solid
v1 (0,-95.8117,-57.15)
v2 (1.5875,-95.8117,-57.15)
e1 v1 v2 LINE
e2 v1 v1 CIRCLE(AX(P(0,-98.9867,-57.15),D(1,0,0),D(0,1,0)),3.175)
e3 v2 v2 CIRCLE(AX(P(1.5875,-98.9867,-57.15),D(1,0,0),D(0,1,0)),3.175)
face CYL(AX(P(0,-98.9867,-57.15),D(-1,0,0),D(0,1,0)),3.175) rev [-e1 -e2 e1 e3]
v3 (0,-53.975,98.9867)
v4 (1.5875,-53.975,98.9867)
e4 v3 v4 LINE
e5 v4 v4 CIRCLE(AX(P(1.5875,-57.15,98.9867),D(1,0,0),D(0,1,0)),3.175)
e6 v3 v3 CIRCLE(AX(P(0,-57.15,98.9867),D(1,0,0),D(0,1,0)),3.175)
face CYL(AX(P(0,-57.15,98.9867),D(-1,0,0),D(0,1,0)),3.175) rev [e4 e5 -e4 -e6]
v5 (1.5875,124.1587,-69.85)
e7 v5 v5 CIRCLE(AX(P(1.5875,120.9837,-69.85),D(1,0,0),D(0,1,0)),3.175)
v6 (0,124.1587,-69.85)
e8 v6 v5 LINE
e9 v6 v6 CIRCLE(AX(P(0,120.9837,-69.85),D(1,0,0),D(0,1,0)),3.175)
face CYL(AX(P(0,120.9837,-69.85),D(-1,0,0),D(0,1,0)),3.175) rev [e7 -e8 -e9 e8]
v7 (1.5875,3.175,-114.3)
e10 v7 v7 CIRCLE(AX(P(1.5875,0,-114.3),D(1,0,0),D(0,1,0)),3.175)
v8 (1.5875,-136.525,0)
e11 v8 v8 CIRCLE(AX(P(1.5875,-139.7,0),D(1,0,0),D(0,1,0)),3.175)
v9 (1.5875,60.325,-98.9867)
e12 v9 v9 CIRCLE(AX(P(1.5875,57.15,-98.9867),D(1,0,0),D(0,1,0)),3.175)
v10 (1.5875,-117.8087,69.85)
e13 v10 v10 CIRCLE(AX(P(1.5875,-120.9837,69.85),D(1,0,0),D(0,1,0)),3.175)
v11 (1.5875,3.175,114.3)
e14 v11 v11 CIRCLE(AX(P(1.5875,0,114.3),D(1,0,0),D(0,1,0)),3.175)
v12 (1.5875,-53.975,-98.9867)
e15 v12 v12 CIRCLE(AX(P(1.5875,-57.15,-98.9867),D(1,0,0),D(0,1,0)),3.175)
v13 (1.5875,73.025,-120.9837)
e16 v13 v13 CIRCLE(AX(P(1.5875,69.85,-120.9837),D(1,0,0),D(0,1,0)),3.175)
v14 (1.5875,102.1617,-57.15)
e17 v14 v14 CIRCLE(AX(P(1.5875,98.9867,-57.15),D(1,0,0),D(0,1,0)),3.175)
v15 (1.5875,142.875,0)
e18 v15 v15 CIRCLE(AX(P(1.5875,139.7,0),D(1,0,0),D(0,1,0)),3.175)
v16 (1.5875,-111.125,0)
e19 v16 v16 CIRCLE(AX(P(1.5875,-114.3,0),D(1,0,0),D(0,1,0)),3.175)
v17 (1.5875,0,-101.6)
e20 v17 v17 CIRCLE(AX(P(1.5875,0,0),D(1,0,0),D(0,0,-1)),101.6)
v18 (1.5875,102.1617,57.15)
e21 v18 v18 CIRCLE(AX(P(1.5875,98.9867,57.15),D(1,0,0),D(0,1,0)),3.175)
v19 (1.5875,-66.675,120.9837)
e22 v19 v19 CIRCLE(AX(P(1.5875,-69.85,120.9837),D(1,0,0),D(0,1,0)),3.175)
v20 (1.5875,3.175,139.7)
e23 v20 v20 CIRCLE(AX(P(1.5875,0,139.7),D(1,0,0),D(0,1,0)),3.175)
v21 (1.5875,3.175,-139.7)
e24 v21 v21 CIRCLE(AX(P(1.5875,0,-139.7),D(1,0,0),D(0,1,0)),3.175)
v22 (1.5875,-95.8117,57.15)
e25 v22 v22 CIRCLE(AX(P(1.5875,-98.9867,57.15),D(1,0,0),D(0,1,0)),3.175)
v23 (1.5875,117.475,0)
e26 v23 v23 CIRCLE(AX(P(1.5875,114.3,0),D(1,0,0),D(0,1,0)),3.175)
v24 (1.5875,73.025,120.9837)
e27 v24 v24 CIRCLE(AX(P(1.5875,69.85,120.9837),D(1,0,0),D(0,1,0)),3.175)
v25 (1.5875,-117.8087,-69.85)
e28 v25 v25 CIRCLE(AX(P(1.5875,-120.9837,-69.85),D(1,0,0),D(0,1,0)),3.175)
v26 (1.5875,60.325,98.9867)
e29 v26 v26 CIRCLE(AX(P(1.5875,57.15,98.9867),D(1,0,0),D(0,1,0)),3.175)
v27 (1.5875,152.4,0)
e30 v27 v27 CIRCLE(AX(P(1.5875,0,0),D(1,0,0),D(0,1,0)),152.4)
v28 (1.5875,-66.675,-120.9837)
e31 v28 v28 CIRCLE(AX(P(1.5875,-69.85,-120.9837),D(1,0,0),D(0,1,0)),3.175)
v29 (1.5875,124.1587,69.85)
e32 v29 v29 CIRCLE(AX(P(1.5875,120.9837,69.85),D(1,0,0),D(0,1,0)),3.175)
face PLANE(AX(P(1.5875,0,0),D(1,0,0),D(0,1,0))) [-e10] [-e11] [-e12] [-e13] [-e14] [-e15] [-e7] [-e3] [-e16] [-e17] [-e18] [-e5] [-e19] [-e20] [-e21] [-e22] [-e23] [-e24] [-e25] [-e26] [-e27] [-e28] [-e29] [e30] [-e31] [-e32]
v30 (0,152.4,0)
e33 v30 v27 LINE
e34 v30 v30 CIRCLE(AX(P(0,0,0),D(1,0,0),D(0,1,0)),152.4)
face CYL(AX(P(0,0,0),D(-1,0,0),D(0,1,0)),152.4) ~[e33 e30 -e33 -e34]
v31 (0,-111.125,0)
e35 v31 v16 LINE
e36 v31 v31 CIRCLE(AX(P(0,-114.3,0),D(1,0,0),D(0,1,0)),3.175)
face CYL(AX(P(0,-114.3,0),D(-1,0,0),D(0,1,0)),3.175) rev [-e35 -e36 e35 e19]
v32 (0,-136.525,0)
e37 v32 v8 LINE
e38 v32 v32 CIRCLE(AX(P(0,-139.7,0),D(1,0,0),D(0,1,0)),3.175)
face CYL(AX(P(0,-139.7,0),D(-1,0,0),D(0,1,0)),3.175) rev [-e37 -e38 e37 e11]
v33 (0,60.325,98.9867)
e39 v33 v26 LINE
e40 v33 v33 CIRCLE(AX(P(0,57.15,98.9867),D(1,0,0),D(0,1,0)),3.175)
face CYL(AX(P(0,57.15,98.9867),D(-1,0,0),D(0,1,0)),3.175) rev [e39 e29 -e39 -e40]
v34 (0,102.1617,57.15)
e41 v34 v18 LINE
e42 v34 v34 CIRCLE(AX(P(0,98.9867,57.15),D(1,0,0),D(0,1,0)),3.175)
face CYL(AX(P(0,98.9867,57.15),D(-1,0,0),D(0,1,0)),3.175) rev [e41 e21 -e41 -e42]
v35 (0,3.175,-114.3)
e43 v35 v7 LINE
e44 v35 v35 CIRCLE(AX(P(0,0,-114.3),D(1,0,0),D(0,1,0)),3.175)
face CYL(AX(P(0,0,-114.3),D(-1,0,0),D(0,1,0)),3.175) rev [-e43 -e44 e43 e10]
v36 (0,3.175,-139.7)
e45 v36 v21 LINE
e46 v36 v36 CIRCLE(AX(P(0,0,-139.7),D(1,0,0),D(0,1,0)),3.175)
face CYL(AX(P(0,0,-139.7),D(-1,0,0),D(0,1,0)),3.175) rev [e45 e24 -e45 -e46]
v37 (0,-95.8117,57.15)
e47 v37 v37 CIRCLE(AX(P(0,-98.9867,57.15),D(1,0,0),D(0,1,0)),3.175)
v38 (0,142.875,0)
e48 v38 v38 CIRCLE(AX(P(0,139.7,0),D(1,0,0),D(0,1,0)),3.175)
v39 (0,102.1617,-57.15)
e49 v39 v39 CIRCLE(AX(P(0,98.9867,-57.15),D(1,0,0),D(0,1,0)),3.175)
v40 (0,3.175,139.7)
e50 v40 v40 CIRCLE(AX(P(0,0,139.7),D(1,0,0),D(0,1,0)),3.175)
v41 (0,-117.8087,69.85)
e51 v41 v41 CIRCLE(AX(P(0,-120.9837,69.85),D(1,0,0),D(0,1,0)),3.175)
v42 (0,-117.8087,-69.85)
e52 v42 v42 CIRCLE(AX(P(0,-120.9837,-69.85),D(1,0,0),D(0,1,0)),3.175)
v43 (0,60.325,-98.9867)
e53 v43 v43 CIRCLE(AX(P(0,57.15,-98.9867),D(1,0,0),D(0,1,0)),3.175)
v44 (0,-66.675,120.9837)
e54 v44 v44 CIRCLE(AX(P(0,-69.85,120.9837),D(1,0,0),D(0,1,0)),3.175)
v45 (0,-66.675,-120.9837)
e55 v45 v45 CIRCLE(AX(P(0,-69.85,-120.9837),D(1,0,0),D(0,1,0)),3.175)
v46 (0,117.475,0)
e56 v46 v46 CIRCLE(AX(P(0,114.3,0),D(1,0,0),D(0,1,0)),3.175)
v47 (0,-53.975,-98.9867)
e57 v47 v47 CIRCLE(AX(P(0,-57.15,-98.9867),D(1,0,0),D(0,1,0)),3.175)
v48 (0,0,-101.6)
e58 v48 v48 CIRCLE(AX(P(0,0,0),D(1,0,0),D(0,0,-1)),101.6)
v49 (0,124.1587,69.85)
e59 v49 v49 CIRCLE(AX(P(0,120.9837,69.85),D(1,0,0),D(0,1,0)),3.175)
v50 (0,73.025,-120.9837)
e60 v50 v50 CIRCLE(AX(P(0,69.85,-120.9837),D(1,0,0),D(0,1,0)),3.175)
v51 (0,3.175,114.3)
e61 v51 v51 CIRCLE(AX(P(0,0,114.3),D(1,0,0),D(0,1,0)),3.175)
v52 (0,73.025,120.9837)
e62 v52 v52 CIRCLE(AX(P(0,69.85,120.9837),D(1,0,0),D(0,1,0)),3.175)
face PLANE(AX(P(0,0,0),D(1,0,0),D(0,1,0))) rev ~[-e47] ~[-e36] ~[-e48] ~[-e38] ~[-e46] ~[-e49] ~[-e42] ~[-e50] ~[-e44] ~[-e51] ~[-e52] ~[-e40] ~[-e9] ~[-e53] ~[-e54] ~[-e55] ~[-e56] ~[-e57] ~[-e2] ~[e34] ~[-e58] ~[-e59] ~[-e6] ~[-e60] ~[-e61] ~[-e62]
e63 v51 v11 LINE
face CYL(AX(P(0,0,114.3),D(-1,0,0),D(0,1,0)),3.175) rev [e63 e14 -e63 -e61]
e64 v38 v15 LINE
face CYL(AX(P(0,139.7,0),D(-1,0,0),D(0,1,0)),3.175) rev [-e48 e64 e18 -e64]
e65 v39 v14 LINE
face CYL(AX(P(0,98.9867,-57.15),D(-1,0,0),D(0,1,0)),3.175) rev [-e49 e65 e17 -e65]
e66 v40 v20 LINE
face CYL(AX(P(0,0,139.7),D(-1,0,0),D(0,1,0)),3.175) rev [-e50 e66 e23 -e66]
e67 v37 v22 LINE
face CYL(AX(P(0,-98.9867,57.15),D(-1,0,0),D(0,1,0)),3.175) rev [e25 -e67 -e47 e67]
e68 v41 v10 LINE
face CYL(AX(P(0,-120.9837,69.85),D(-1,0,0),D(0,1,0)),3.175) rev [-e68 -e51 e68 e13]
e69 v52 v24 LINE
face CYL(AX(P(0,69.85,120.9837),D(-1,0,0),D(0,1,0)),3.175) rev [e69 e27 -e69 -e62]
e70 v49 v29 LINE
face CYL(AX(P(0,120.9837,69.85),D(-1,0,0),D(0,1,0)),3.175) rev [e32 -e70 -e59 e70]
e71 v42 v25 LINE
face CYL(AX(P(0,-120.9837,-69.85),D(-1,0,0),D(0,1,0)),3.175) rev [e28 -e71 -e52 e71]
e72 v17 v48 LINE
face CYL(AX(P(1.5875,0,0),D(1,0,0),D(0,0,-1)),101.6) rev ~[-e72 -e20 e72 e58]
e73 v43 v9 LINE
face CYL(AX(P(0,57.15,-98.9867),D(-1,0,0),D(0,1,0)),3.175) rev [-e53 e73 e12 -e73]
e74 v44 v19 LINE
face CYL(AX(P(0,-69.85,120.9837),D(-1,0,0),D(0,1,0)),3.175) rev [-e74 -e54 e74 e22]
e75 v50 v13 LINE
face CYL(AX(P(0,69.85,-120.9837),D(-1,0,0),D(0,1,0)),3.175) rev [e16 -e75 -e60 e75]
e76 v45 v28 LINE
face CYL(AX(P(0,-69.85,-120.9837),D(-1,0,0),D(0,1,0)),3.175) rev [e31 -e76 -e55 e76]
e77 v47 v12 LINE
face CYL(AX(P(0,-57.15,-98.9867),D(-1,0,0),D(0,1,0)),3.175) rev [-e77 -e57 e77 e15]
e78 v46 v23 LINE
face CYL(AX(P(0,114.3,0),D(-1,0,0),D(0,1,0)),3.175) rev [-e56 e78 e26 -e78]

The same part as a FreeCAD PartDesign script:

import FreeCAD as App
import Part
import Sketcher

V = App.Vector
Q = App.Units.Quantity

doc = App.newDocument("Part")
body = doc.addObject("PartDesign::Body", "Body")

# Sketch on YZ plane
sketch1 = body.newObject("Sketcher::SketchObject", "Sketch")
sketch1.AttachmentSupport = (doc.getObject("YZ_Plane"), [""])
sketch1.MapMode = "FlatFace"
sketch1.addGeometry(Part.Circle(V(0, 0, 0), V(0, 0, 1), 152.4), False)
sketch1.addGeometry(Part.Circle(V(-69.85, -120.9837, 0), V(0, 0, 1), 3.175), False)
sketch1.addGeometry(Part.Circle(V(-57.15, -98.9867, 0), V(0, 0, 1), 3.175), False)
sketch1.addGeometry(Part.Circle(V(-120.9837, -69.85, 0), V(0, 0, 1), 3.175), False)
sketch1.addGeometry(Part.Circle(V(-98.9867, -57.15, 0), V(0, 0, 1), 3.175), False)
sketch1.addGeometry(Part.Circle(V(0, -139.7, 0), V(0, 0, 1), 3.175), False)
sketch1.addGeometry(Part.Circle(V(69.85, -120.9837, 0), V(0, 0, 1), 3.175), False)
sketch1.addGeometry(Part.Circle(V(0, -114.3, 0), V(0, 0, 1), 3.175), False)
sketch1.addGeometry(Part.Circle(V(57.15, -98.9867, 0), V(0, 0, 1), 3.175), False)
sketch1.addGeometry(Part.Circle(V(98.9867, -57.15, 0), V(0, 0, 1), 3.175), False)
sketch1.addGeometry(Part.Circle(V(120.9837, -69.85, 0), V(0, 0, 1), 3.175), False)
sketch1.addGeometry(Part.Circle(V(-139.7, 0, 0), V(0, 0, 1), 3.175), False)
sketch1.addGeometry(Part.Circle(V(-114.3, 0, 0), V(0, 0, 1), 3.175), False)
sketch1.addGeometry(Part.Circle(V(-120.9837, 69.85, 0), V(0, 0, 1), 3.175), False)
sketch1.addGeometry(Part.Circle(V(-98.9867, 57.15, 0), V(0, 0, 1), 3.175), False)
sketch1.addGeometry(Part.Circle(V(-57.15, 98.9867, 0), V(0, 0, 1), 3.175), False)
sketch1.addGeometry(Part.Circle(V(-69.85, 120.9837, 0), V(0, 0, 1), 3.175), False)
sketch1.addGeometry(Part.Circle(V(114.3, 0, 0), V(0, 0, 1), 3.175), False)
sketch1.addGeometry(Part.Circle(V(139.7, 0, 0), V(0, 0, 1), 3.175), False)
sketch1.addGeometry(Part.Circle(V(98.9867, 57.15, 0), V(0, 0, 1), 3.175), False)
sketch1.addGeometry(Part.Circle(V(120.9837, 69.85, 0), V(0, 0, 1), 3.175), False)
sketch1.addGeometry(Part.Circle(V(57.15, 98.9867, 0), V(0, 0, 1), 3.175), False)
sketch1.addGeometry(Part.Circle(V(0, 114.3, 0), V(0, 0, 1), 3.175), False)
sketch1.addGeometry(Part.Circle(V(0, 139.7, 0), V(0, 0, 1), 3.175), False)
sketch1.addGeometry(Part.Circle(V(69.85, 120.9837, 0), V(0, 0, 1), 3.175), False)
sketch1.addConstraint(Sketcher.Constraint("Coincident", 0, 3, -1, 1))
sketch1.addConstraint(Sketcher.Constraint("Equal", 1, 2))
sketch1.addConstraint(Sketcher.Constraint("Equal", 2, 3))
sketch1.addConstraint(Sketcher.Constraint("Equal", 3, 4))
sketch1.addConstraint(Sketcher.Constraint("Equal", 4, 5))
sketch1.addConstraint(Sketcher.Constraint("Equal", 5, 6))
sketch1.addConstraint(Sketcher.Constraint("Equal", 6, 7))
sketch1.addConstraint(Sketcher.Constraint("Equal", 7, 8))
sketch1.addConstraint(Sketcher.Constraint("Equal", 8, 9))
sketch1.addConstraint(Sketcher.Constraint("Equal", 9, 10))
sketch1.addConstraint(Sketcher.Constraint("Equal", 10, 11))
sketch1.addConstraint(Sketcher.Constraint("Equal", 11, 12))
sketch1.addConstraint(Sketcher.Constraint("Equal", 12, 13))
sketch1.addConstraint(Sketcher.Constraint("Equal", 13, 14))
sketch1.addConstraint(Sketcher.Constraint("Equal", 14, 15))
sketch1.addConstraint(Sketcher.Constraint("Equal", 15, 16))
sketch1.addConstraint(Sketcher.Constraint("Equal", 16, 17))
sketch1.addConstraint(Sketcher.Constraint("Equal", 17, 18))
sketch1.addConstraint(Sketcher.Constraint("Equal", 18, 19))
sketch1.addConstraint(Sketcher.Constraint("Equal", 19, 20))
sketch1.addConstraint(Sketcher.Constraint("Equal", 20, 21))
sketch1.addConstraint(Sketcher.Constraint("Equal", 21, 22))
sketch1.addConstraint(Sketcher.Constraint("Equal", 22, 23))
sketch1.addConstraint(Sketcher.Constraint("Equal", 23, 24))
sketch1.addConstraint(Sketcher.Constraint("Symmetric", 10, 3, 13, 3, -1, 1))
sketch1.addConstraint(Sketcher.Constraint("Symmetric", 9, 3, 14, 3, -1, 1))
sketch1.addConstraint(Sketcher.Constraint("Symmetric", 8, 3, 15, 3, -1, 1))
sketch1.addConstraint(Sketcher.Constraint("Symmetric", 6, 3, 16, 3, -1, 1))
sketch1.addConstraint(Sketcher.Constraint("Symmetric", 12, 3, 17, 3, -1, 1))
sketch1.addConstraint(Sketcher.Constraint("Symmetric", 11, 3, 18, 3, -1, 1))
sketch1.addConstraint(Sketcher.Constraint("Symmetric", 4, 3, 19, 3, -1, 1))
sketch1.addConstraint(Sketcher.Constraint("Symmetric", 3, 3, 20, 3, -1, 1))
sketch1.addConstraint(Sketcher.Constraint("Symmetric", 2, 3, 21, 3, -1, 1))
sketch1.addConstraint(Sketcher.Constraint("Symmetric", 7, 3, 22, 3, -1, 1))
sketch1.addConstraint(Sketcher.Constraint("Symmetric", 5, 3, 23, 3, -1, 1))
sketch1.addConstraint(Sketcher.Constraint("Symmetric", 1, 3, 24, 3, -1, 1))
sketch1.addConstraint(Sketcher.Constraint("Symmetric", 1, 3, 6, 3, -2))
sketch1.addConstraint(Sketcher.Constraint("Symmetric", 2, 3, 8, 3, -2))
sketch1.addConstraint(Sketcher.Constraint("Symmetric", 4, 3, 9, 3, -2))
sketch1.addConstraint(Sketcher.Constraint("Symmetric", 3, 3, 10, 3, -2))
sketch1.addConstraint(Sketcher.Constraint("PointOnObject", 5, 3, -2))
sketch1.addConstraint(Sketcher.Constraint("PointOnObject", 7, 3, -2))
sketch1.addConstraint(Sketcher.Constraint("PointOnObject", 11, 3, -1))
sketch1.addConstraint(Sketcher.Constraint("PointOnObject", 12, 3, -1))
sketch1.addConstraint(Sketcher.Constraint("Diameter", 0, Q("12 in")))
sketch1.addConstraint(Sketcher.Constraint("Diameter", 1, Q("0.25 in")))
sketch1.addConstraint(Sketcher.Constraint("DistanceY", 5, 3, 7, 3, Q("1 in")))
sketch1.addConstraint(Sketcher.Constraint("DistanceX", 11, 3, 12, 3, Q("1 in")))
sketch1.addConstraint(Sketcher.Constraint("DistanceX", 1, 3, 2, 3, Q("0.5 in")))
sketch1.addConstraint(Sketcher.Constraint("DistanceY", 3, 3, 4, 3, Q("0.5 in")))
sketch1.addConstraint(Sketcher.Constraint("DistanceX", 2, 3, 6, 3, Q("5 in")))
sketch1.addConstraint(Sketcher.Constraint("DistanceY", 4, 3, 13, 3, Q("5 in")))
sketch1.addConstraint(Sketcher.Constraint("DistanceY", 5, 3, -1, 1, Q("5.5 in")))
sketch1.addConstraint(Sketcher.Constraint("DistanceX", 11, 3, -1, 1, Q("5.5 in")))
sketch1.addConstraint(Sketcher.Constraint("DistanceY", 1, 3, -1, 1, 120.9837))
sketch1.addConstraint(Sketcher.Constraint("DistanceY", 2, 3, -1, 1, 98.9867))
sketch1.addConstraint(Sketcher.Constraint("DistanceX", 3, 3, -1, 1, 120.9837))
sketch1.addConstraint(Sketcher.Constraint("DistanceX", 4, 3, -1, 1, 98.9867))
pad1 = body.newObject("PartDesign::Pad", "Pad")
pad1.Profile = sketch1
pad1.Length = Q("0.0625 in")

# Sketch on YZ plane
sketch2 = body.newObject("Sketcher::SketchObject", "Sketch001")
sketch2.AttachmentSupport = (doc.getObject("YZ_Plane"), [""])
sketch2.MapMode = "FlatFace"
sketch2.AttachmentOffset = App.Placement(V(0, 0, 0.0625 * 25.4), App.Rotation())
sketch2.addGeometry(Part.Circle(V(0, 0, 0), V(0, 0, 1), 101.6), False)
sketch2.addConstraint(Sketcher.Constraint("Coincident", 0, 3, -1, 1))
sketch2.addConstraint(Sketcher.Constraint("Diameter", 0, Q("8 in")))
pocket1 = body.newObject("PartDesign::Pocket", "Pocket")
pocket1.Profile = sketch2
pocket1.Type = "ThroughAll"

doc.recompute()
